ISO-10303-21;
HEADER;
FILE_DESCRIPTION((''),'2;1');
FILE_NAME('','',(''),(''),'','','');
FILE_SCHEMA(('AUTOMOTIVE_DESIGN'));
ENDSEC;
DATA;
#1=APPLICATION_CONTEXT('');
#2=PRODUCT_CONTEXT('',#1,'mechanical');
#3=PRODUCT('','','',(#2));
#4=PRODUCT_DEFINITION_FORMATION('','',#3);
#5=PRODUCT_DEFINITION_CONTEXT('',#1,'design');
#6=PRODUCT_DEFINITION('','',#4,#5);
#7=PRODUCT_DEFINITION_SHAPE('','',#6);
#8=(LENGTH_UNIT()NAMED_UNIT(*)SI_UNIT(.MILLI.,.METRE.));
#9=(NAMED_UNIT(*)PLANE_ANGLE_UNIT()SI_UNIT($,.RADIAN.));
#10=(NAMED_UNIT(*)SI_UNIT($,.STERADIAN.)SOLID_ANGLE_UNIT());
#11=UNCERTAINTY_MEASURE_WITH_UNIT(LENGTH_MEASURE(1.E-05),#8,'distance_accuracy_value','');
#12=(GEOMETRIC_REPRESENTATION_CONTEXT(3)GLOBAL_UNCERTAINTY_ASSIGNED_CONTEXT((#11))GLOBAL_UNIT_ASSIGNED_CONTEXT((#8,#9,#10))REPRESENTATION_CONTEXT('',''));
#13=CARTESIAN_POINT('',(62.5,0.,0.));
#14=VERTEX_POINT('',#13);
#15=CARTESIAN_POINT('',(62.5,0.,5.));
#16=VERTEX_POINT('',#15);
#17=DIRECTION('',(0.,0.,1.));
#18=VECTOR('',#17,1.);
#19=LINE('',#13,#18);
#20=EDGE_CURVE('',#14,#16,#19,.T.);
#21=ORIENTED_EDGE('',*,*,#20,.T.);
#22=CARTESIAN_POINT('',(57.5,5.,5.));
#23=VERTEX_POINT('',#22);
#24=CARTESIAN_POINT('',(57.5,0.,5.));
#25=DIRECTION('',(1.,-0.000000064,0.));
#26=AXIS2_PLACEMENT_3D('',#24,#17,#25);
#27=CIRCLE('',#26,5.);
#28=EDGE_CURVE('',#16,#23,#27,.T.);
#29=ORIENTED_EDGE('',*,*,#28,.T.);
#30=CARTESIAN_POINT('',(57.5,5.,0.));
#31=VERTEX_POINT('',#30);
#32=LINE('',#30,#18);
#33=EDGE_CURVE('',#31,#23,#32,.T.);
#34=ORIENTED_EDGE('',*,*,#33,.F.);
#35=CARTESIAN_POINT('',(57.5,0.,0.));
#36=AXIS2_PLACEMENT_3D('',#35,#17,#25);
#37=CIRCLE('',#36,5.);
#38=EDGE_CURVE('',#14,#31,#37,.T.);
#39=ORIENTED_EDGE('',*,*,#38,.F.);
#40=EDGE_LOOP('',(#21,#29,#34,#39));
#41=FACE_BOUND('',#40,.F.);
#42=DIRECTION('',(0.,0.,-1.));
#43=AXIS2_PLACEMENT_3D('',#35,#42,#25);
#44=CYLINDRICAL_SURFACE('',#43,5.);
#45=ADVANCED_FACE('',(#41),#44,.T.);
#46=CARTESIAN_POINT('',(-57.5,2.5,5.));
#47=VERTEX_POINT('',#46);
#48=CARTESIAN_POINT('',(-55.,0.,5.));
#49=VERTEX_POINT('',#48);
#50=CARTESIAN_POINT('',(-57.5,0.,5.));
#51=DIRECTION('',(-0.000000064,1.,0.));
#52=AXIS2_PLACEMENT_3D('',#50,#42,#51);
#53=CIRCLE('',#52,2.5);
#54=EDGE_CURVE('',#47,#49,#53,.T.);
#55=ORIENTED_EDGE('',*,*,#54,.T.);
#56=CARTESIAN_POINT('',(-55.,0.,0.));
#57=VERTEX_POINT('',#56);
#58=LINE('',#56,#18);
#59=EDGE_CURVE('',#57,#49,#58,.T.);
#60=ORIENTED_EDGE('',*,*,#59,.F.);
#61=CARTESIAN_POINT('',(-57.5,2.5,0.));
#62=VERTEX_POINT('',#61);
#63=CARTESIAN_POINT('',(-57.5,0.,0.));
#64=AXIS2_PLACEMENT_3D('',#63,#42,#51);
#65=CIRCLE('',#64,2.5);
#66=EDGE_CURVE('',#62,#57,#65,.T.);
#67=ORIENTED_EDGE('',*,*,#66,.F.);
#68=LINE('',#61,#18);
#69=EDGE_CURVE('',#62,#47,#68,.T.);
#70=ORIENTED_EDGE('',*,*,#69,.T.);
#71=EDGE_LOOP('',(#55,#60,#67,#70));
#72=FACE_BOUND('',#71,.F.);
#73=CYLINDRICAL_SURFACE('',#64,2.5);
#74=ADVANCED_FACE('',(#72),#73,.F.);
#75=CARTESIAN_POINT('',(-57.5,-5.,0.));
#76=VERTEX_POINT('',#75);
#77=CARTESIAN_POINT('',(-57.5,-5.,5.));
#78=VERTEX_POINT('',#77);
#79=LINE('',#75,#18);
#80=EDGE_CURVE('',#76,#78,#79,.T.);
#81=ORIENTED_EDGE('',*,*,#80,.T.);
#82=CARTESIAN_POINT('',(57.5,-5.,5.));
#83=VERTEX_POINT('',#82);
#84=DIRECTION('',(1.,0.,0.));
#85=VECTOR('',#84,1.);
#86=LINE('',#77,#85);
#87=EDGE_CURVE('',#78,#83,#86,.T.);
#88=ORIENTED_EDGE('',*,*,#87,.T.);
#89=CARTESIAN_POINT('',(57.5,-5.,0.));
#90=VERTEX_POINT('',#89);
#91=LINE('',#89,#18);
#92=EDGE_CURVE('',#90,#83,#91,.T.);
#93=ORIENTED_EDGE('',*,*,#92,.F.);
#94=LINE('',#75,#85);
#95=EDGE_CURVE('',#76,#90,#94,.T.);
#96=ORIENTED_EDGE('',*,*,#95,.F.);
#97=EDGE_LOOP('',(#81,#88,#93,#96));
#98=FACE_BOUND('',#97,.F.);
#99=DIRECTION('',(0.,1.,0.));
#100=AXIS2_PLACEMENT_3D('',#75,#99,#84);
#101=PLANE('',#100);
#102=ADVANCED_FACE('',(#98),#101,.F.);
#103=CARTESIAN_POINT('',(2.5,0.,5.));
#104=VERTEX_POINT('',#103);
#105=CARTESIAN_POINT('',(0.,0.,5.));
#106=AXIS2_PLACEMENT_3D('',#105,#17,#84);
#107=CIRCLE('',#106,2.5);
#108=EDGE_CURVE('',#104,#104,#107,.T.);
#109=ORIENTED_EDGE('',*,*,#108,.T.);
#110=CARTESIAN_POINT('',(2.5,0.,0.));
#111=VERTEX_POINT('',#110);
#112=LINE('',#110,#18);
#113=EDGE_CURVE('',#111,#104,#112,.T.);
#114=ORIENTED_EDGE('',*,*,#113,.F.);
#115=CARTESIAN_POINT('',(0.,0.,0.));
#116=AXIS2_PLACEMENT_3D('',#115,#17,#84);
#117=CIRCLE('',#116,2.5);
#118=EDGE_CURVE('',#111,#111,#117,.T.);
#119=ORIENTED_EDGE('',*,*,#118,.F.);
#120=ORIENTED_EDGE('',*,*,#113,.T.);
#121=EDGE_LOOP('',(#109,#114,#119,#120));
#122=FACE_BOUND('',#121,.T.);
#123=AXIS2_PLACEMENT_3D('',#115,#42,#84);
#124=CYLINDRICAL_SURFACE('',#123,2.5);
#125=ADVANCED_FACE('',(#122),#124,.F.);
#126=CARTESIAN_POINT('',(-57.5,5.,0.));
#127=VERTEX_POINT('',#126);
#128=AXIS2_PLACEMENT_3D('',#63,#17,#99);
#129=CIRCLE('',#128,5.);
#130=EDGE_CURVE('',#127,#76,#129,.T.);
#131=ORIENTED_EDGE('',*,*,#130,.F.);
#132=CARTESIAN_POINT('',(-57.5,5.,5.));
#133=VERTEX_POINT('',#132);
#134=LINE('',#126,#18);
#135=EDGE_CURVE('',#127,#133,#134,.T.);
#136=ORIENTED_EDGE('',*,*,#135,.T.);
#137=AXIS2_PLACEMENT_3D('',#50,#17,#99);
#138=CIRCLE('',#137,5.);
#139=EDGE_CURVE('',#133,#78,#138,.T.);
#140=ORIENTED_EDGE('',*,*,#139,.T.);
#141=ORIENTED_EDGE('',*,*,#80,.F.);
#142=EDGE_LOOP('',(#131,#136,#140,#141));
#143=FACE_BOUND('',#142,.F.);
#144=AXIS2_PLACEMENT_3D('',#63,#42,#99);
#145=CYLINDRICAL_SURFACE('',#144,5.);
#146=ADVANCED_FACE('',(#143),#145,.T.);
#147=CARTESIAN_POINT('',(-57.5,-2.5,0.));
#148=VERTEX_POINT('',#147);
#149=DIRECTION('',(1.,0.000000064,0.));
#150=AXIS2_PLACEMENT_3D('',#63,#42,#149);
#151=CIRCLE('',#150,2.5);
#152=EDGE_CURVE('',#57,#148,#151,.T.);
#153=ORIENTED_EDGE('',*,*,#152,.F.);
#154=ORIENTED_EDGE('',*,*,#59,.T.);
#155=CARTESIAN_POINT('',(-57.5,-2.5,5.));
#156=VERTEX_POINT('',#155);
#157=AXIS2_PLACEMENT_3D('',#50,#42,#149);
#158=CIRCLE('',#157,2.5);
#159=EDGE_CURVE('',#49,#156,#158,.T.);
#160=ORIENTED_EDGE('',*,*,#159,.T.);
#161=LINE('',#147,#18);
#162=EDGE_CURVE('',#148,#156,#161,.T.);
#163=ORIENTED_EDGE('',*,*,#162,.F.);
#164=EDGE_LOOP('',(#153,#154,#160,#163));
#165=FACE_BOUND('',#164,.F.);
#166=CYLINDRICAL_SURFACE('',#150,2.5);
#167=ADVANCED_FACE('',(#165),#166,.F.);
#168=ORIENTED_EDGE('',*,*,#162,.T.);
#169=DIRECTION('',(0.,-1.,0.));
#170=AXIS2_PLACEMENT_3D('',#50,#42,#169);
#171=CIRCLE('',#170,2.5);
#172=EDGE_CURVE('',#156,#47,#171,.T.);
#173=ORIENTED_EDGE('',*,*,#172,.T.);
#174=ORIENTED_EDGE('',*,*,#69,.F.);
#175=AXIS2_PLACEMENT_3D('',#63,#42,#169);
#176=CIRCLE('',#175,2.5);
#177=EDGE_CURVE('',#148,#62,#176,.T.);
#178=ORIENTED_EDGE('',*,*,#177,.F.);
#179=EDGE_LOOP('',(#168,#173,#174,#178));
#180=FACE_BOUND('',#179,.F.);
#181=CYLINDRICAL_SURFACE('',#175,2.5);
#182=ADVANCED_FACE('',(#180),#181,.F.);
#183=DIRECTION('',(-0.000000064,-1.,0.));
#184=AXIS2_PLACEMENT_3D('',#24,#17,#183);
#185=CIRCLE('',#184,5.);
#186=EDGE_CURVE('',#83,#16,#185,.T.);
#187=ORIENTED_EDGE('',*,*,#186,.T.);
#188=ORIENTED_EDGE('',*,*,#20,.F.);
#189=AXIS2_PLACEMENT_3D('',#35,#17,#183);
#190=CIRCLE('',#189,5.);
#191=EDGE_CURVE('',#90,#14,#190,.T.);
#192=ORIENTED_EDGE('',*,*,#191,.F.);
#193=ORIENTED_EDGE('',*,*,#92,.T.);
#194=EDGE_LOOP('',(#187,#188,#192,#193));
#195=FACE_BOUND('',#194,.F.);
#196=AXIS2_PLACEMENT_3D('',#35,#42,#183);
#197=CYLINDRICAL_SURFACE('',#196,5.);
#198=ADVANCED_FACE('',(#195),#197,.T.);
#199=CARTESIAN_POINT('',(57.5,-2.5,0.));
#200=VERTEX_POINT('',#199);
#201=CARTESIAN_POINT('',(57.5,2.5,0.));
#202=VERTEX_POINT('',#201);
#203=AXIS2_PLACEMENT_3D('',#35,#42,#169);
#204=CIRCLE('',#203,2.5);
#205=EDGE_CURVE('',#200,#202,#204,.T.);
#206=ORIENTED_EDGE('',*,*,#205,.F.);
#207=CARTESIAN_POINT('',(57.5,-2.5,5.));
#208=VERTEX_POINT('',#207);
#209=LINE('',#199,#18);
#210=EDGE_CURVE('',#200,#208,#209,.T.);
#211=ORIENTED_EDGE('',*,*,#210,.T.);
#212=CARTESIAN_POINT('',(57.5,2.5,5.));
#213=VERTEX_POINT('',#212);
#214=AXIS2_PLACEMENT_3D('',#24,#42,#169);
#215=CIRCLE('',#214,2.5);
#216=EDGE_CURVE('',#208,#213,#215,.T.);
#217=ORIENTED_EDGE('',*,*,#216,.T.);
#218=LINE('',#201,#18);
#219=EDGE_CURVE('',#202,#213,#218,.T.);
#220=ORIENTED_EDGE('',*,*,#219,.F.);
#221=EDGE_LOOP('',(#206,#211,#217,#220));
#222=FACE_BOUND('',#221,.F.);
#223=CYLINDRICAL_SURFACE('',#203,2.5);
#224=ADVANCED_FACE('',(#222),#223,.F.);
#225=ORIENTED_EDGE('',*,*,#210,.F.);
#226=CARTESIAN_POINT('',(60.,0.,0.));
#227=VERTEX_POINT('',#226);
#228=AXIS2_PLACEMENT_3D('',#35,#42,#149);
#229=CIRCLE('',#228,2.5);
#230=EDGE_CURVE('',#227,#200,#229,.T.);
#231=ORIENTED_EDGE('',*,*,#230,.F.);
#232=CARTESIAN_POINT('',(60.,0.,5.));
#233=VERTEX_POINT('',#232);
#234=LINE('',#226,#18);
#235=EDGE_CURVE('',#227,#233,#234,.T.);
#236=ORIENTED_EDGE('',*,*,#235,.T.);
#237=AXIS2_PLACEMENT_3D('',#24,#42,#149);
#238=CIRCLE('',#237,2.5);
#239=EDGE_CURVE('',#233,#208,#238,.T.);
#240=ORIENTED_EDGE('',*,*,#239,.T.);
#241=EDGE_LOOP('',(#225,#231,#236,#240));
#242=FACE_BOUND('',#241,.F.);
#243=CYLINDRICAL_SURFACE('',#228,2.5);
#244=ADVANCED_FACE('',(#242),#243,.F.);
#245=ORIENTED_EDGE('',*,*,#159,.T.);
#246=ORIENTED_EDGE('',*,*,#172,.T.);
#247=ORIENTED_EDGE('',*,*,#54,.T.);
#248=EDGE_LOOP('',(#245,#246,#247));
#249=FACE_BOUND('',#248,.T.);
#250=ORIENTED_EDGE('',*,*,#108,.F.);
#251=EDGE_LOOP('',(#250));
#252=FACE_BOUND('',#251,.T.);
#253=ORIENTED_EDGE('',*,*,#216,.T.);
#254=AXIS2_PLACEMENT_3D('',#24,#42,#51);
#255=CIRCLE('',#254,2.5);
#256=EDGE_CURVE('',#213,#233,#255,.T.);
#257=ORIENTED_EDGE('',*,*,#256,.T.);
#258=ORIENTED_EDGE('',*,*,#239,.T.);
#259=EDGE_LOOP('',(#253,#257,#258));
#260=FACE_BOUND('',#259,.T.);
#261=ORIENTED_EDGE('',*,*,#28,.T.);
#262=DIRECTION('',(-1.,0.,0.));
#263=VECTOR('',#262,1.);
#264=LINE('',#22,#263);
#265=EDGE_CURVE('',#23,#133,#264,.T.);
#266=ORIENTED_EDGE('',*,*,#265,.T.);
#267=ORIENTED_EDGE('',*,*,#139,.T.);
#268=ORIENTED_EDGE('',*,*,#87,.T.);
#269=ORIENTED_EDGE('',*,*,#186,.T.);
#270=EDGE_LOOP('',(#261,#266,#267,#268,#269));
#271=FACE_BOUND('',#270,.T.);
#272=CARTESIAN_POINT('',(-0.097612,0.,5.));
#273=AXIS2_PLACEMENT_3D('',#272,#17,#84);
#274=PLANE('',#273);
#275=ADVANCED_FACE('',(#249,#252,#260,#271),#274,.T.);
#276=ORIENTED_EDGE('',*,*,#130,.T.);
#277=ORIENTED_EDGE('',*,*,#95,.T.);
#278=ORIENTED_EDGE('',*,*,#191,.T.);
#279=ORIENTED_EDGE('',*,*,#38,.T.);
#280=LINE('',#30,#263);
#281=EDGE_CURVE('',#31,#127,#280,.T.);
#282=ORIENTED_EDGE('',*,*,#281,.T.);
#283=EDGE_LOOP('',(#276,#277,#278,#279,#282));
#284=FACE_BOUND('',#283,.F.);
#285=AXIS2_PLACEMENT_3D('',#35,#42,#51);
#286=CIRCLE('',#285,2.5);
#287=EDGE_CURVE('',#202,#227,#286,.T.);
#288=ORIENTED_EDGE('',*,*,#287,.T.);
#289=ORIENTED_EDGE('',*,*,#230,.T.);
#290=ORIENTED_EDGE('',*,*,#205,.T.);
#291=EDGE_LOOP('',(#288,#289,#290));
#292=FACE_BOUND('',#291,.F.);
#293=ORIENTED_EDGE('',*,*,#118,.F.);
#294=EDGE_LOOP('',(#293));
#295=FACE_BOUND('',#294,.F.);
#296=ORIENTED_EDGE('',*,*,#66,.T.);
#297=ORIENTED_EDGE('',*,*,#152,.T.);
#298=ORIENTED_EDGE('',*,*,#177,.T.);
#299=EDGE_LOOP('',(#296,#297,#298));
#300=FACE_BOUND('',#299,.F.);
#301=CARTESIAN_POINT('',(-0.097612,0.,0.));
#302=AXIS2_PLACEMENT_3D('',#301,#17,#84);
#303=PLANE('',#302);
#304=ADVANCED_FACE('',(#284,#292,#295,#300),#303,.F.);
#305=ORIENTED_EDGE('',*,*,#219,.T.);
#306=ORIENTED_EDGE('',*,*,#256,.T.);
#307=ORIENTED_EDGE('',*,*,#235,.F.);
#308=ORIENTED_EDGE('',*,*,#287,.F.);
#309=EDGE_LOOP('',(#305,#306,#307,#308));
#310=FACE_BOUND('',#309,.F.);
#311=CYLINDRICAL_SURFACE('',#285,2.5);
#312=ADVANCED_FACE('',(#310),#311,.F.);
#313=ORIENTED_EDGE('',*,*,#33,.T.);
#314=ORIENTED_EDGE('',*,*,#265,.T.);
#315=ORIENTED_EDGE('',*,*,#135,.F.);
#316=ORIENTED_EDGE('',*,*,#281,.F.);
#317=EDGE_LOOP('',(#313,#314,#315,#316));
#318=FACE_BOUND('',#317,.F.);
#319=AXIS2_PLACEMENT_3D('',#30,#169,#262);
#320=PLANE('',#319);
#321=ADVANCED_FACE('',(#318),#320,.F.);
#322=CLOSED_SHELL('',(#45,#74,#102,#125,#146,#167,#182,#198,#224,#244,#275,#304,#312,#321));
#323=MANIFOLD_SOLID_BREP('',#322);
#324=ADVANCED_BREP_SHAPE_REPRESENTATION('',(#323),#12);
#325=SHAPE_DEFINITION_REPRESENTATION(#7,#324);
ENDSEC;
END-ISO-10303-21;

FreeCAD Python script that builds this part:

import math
import FreeCAD as App
import Part
import Sketcher

doc = App.newDocument("Part")
body = doc.addObject("PartDesign::Body", "Body")

sketch1 = doc.addObject("Sketcher::SketchObject", "Sketch")
body.addObject(sketch1)
sketch1.AttachmentSupport = (doc.XY_Plane, [""])
sketch1.MapMode = "FlatFace"
sketch1.addGeometry(Part.LineSegment(App.Vector(-57.5, -5, 0), App.Vector(57.5, -5, 0)), False)
sketch1.addGeometry(Part.ArcOfCircle(Part.Circle(App.Vector(57.5, 0, 0), App.Vector(0, 0, 1), 5), math.radians(-90), math.radians(0)), False)
sketch1.addGeometry(Part.ArcOfCircle(Part.Circle(App.Vector(57.5, 0, 0), App.Vector(0, 0, 1), 5), math.radians(0), math.radians(90)), False)
sketch1.addGeometry(Part.LineSegment(App.Vector(57.5, 5, 0), App.Vector(-57.5, 5, 0)), False)
sketch1.addGeometry(Part.ArcOfCircle(Part.Circle(App.Vector(-57.5, 0, 0), App.Vector(0, 0, 1), 5), math.radians(90), math.radians(270)), False)
sketch1.addGeometry(Part.ArcOfCircle(Part.Circle(App.Vector(57.5, 0, 0), App.Vector(0, 0, 1), 2.5), math.radians(90), math.radians(270)), False)
sketch1.addGeometry(Part.ArcOfCircle(Part.Circle(App.Vector(57.5, 0, 0), App.Vector(0, 0, 1), 2.5), math.radians(0), math.radians(90)), False)
sketch1.addGeometry(Part.ArcOfCircle(Part.Circle(App.Vector(57.5, 0, 0), App.Vector(0, 0, 1), 2.5), math.radians(-90), math.radians(0)), False)
sketch1.addGeometry(Part.Circle(App.Vector(0, 0, 0), App.Vector(0, 0, 1), 2.5), False)
sketch1.addGeometry(Part.ArcOfCircle(Part.Circle(App.Vector(-57.5, 0, 0), App.Vector(0, 0, 1), 2.5), math.radians(0), math.radians(90)), False)
sketch1.addGeometry(Part.ArcOfCircle(Part.Circle(App.Vector(-57.5, 0, 0), App.Vector(0, 0, 1), 2.5), math.radians(-90), math.radians(0)), False)
sketch1.addGeometry(Part.ArcOfCircle(Part.Circle(App.Vector(-57.5, 0, 0), App.Vector(0, 0, 1), 2.5), math.radians(90), math.radians(270)), False)
sketch1.addConstraint(Sketcher.Constraint("Tangent", 0, 2, 1, 1))
sketch1.addConstraint(Sketcher.Constraint("Tangent", 1, 2, 2, 1))
sketch1.addConstraint(Sketcher.Constraint("Tangent", 2, 2, 3, 1))
sketch1.addConstraint(Sketcher.Constraint("Tangent", 3, 2, 4, 1))
sketch1.addConstraint(Sketcher.Constraint("Tangent", 4, 2, 0, 1))
sketch1.addConstraint(Sketcher.Constraint("Tangent", 5, 1, 6, 2))
sketch1.addConstraint(Sketcher.Constraint("Tangent", 6, 1, 7, 2))
sketch1.addConstraint(Sketcher.Constraint("Tangent", 7, 1, 5, 2))
sketch1.addConstraint(Sketcher.Constraint("Tangent", 9, 1, 10, 2))
sketch1.addConstraint(Sketcher.Constraint("Tangent", 10, 1, 11, 2))
sketch1.addConstraint(Sketcher.Constraint("Tangent", 11, 1, 9, 2))
sketch1.addConstraint(Sketcher.Constraint("Horizontal", 0))
sketch1.addConstraint(Sketcher.Constraint("Horizontal", 3))
sketch1.addConstraint(Sketcher.Constraint("Coincident", 8, 3, -1, 1))
sketch1.addConstraint(Sketcher.Constraint("Coincident", 5, 3, 1, 3))
sketch1.addConstraint(Sketcher.Constraint("Coincident", 9, 3, 4, 3))
sketch1.addConstraint(Sketcher.Constraint("Equal", 1, 2))
sketch1.addConstraint(Sketcher.Constraint("Equal", 7, 8))
sketch1.addConstraint(Sketcher.Constraint("Equal", 8, 9))
sketch1.addConstraint(Sketcher.Constraint("Symmetric", 1, 3, 4, 3, -1, 1))
sketch1.addConstraint(Sketcher.Constraint("PointOnObject", 1, 2, -1))
sketch1.addConstraint(Sketcher.Constraint("PointOnObject", 6, 1, -1))
sketch1.addConstraint(Sketcher.Constraint("PointOnObject", 9, 1, -1))
sketch1.addConstraint(Sketcher.Constraint("Vertical", 2, 2, 5, 1))
sketch1.addConstraint(Sketcher.Constraint("Vertical", 5, 1, 7, 1))
sketch1.addConstraint(Sketcher.Constraint("Vertical", 4, 2, 10, 1))
sketch1.addConstraint(Sketcher.Constraint("Vertical", 10, 1, 11, 1))
sketch1.addConstraint(Sketcher.Constraint("Diameter", 8, 5.0))
sketch1.addConstraint(Sketcher.Constraint("Radius", 1, 5.0))
sketch1.addConstraint(Sketcher.Constraint("DistanceX", 0, 1, 0, 2, 115.0))
pad1 = doc.addObject("PartDesign::Pad", "Pad")
body.addObject(pad1)
pad1.Profile = sketch1
pad1.Length = 5

doc.recompute()
